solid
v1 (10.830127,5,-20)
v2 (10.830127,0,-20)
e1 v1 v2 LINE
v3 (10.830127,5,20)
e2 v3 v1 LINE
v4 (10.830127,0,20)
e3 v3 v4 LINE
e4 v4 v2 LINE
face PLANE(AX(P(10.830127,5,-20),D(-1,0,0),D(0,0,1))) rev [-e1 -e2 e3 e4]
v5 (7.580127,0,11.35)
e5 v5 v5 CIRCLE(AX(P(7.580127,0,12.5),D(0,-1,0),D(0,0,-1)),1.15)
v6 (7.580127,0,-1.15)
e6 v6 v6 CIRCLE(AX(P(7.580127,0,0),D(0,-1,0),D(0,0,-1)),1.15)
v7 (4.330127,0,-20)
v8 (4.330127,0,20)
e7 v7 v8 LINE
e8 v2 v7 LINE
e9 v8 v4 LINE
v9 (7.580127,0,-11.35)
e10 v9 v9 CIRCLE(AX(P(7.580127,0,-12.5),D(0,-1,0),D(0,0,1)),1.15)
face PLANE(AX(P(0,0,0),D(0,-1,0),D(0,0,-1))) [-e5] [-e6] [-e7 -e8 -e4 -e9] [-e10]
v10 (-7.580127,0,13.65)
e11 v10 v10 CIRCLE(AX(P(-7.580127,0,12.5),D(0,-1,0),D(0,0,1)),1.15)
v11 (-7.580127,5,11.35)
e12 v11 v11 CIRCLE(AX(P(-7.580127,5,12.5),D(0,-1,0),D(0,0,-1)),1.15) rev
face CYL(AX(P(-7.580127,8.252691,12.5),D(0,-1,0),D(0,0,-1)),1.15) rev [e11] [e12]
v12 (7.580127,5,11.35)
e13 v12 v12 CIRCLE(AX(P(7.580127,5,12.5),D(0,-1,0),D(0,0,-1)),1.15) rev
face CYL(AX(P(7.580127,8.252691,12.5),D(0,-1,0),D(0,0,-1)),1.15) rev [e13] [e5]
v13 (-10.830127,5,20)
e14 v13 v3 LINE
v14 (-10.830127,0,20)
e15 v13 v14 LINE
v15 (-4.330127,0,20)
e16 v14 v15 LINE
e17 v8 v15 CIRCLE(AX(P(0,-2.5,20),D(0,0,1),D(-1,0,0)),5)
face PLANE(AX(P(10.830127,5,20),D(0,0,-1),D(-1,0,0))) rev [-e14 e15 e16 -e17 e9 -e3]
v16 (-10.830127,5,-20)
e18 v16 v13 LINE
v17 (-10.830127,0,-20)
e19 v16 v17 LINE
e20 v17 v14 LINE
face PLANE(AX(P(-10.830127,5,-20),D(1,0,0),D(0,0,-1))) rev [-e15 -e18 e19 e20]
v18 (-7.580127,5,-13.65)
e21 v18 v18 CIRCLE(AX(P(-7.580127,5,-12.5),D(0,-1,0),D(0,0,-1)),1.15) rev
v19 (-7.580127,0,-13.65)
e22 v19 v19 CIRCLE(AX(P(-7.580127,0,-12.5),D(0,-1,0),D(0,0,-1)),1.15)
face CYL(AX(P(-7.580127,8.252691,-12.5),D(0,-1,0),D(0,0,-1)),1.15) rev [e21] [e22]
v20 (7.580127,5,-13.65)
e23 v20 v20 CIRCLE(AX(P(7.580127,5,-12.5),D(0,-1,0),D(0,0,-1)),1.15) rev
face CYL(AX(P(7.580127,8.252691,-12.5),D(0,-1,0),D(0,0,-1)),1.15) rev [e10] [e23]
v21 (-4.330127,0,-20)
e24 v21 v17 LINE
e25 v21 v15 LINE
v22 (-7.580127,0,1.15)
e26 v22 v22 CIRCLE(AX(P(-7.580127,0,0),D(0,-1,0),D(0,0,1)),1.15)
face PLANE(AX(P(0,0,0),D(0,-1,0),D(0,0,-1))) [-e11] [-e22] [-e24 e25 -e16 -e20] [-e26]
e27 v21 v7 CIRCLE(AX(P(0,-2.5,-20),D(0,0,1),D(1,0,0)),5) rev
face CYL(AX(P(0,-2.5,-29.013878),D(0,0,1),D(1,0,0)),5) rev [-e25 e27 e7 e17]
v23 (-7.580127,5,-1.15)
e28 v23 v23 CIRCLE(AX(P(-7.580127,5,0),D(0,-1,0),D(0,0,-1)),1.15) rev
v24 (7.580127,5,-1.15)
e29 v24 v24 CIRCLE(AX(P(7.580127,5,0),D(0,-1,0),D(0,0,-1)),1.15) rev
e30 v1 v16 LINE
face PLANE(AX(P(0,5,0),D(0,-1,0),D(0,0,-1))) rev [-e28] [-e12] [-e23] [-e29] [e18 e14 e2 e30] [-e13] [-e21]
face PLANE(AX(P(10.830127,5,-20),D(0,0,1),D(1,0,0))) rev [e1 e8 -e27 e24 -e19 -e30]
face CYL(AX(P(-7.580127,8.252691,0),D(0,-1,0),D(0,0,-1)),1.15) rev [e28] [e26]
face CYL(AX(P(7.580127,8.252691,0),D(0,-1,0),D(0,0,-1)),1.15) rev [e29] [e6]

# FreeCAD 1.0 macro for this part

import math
import FreeCAD as App
import Part
import Sketcher

doc = App.newDocument("Part")
body = doc.addObject("PartDesign::Body", "Body")

# Sketch on XZ plane
sketch1 = body.newObject("Sketcher::SketchObject", "Sketch")
sketch1.AttachmentSupport = (doc.getObject("XZ_Plane"), [""])
sketch1.MapMode = "FlatFace"
sketch1.addGeometry([
    Part.LineSegment(App.Vector(-11, -20, 0), App.Vector(-11, 20, 0)),
    Part.LineSegment(App.Vector(-11, 20, 0), App.Vector(11, 20, 0)),
    Part.LineSegment(App.Vector(11, 20, 0), App.Vector(11, -20, 0)),
    Part.LineSegment(App.Vector(11, -20, 0), App.Vector(-11, -20, 0)),
], False)
sketch1.addConstraint([
    Sketcher.Constraint("Coincident", 0, 2, 1, 1),
    Sketcher.Constraint("Coincident", 1, 2, 2, 1),
    Sketcher.Constraint("Coincident", 2, 2, 3, 1),
    Sketcher.Constraint("Coincident", 3, 2, 0, 1),
    Sketcher.Constraint("Vertical", 0),
    Sketcher.Constraint("Horizontal", 1),
    Sketcher.Constraint("Vertical", 2),
    Sketcher.Constraint("Horizontal", 3),
    Sketcher.Constraint("Symmetric", 0, 2, 2, 2, -1, 1),
    Sketcher.Constraint("DistanceY", 0, 1, 0, 2, 40.0),
    Sketcher.Constraint("DistanceX", 1, 1, 1, 2, 21.660254),
])
pad1 = body.newObject("PartDesign::Pad", "Pad")
pad1.Profile = sketch1
pad1.Length = 5
pad1.Reversed = True

# Sketch on XY plane
sketch2 = body.newObject("Sketcher::SketchObject", "Sketch001")
sketch2.AttachmentSupport = (doc.getObject("XY_Plane"), [""])
sketch2.MapMode = "FlatFace"
sketch2.AttachmentOffset = App.Placement(App.Vector(0, 0, 20), App.Rotation())
sketch2.addGeometry([
    Part.LineSegment(App.Vector(-4, 0, 0), App.Vector(4, 0, 0)),
    Part.ArcOfCircle(Part.Circle(App.Vector(0, -2, 0), App.Vector(0, 0, 1), 5), math.radians(30), math.radians(150)),
], False)
sketch2.addConstraint([
    Sketcher.Constraint("Coincident", 0, 1, 1, 2),
    Sketcher.Constraint("Coincident", 1, 1, 0, 2),
    Sketcher.Constraint("Horizontal", 0),
    Sketcher.Constraint("Symmetric", 0, 1, 1, 1, -1, 1),
    Sketcher.Constraint("Radius", 1, 5.0),
    Sketcher.Constraint("DistanceY", 1, 3, -1, 1, 2.5),
])
pocket1 = body.newObject("PartDesign::Pocket", "Pocket")
pocket1.Profile = sketch2
pocket1.Length = 40

# Sketch on XZ plane
sketch3 = body.newObject("Sketcher::SketchObject", "Sketch002")
sketch3.AttachmentSupport = (doc.getObject("XZ_Plane"), [""])
sketch3.MapMode = "FlatFace"
sketch3.addGeometry([
    Part.Circle(App.Vector(7.6, 12.5, 0), App.Vector(0, 0, 1), 1.1),  # 0
    Part.Circle(App.Vector(7.6, -12.5, 0), App.Vector(0, 0, 1), 1.1),  # 1
    Part.Circle(App.Vector(7.6, 0, 0), App.Vector(0, 0, 1), 1.1),  # 2
    Part.Circle(App.Vector(-7.6, -12.5, 0), App.Vector(0, 0, 1), 1.1),  # 3
    Part.Circle(App.Vector(-7.6, 0, 0), App.Vector(0, 0, 1), 1.1),  # 4
    Part.Circle(App.Vector(-7.6, 12.5, 0), App.Vector(0, 0, 1), 1.1),  # 5
], False)
sketch3.addConstraint([
    Sketcher.Constraint("Equal", 0, 1),
    Sketcher.Constraint("Equal", 1, 2),
    Sketcher.Constraint("Equal", 2, 3),
    Sketcher.Constraint("Equal", 3, 4),
    Sketcher.Constraint("Equal", 4, 5),
    Sketcher.Constraint("Symmetric", 0, 3, 3, 3, -1, 1),
    Sketcher.Constraint("Symmetric", 2, 3, 4, 3, -1, 1),
    Sketcher.Constraint("Symmetric", 1, 3, 5, 3, -1, 1),
    Sketcher.Constraint("Symmetric", 1, 3, 3, 3, -2),
    Sketcher.Constraint("PointOnObject", 2, 3, -1),
    Sketcher.Constraint("Vertical", 1, 3, 2, 3),
    Sketcher.Constraint("Diameter", 0, 2.3),
    Sketcher.Constraint("DistanceY", 1, 3, 0, 3, 25.0),
    Sketcher.Constraint("DistanceX", -1, 1, 0, 3, 7.580127),
])
pocket2 = body.newObject("PartDesign::Pocket", "Pocket001")
pocket2.Profile = sketch3
pocket2.Length = 5

doc.recompute()
